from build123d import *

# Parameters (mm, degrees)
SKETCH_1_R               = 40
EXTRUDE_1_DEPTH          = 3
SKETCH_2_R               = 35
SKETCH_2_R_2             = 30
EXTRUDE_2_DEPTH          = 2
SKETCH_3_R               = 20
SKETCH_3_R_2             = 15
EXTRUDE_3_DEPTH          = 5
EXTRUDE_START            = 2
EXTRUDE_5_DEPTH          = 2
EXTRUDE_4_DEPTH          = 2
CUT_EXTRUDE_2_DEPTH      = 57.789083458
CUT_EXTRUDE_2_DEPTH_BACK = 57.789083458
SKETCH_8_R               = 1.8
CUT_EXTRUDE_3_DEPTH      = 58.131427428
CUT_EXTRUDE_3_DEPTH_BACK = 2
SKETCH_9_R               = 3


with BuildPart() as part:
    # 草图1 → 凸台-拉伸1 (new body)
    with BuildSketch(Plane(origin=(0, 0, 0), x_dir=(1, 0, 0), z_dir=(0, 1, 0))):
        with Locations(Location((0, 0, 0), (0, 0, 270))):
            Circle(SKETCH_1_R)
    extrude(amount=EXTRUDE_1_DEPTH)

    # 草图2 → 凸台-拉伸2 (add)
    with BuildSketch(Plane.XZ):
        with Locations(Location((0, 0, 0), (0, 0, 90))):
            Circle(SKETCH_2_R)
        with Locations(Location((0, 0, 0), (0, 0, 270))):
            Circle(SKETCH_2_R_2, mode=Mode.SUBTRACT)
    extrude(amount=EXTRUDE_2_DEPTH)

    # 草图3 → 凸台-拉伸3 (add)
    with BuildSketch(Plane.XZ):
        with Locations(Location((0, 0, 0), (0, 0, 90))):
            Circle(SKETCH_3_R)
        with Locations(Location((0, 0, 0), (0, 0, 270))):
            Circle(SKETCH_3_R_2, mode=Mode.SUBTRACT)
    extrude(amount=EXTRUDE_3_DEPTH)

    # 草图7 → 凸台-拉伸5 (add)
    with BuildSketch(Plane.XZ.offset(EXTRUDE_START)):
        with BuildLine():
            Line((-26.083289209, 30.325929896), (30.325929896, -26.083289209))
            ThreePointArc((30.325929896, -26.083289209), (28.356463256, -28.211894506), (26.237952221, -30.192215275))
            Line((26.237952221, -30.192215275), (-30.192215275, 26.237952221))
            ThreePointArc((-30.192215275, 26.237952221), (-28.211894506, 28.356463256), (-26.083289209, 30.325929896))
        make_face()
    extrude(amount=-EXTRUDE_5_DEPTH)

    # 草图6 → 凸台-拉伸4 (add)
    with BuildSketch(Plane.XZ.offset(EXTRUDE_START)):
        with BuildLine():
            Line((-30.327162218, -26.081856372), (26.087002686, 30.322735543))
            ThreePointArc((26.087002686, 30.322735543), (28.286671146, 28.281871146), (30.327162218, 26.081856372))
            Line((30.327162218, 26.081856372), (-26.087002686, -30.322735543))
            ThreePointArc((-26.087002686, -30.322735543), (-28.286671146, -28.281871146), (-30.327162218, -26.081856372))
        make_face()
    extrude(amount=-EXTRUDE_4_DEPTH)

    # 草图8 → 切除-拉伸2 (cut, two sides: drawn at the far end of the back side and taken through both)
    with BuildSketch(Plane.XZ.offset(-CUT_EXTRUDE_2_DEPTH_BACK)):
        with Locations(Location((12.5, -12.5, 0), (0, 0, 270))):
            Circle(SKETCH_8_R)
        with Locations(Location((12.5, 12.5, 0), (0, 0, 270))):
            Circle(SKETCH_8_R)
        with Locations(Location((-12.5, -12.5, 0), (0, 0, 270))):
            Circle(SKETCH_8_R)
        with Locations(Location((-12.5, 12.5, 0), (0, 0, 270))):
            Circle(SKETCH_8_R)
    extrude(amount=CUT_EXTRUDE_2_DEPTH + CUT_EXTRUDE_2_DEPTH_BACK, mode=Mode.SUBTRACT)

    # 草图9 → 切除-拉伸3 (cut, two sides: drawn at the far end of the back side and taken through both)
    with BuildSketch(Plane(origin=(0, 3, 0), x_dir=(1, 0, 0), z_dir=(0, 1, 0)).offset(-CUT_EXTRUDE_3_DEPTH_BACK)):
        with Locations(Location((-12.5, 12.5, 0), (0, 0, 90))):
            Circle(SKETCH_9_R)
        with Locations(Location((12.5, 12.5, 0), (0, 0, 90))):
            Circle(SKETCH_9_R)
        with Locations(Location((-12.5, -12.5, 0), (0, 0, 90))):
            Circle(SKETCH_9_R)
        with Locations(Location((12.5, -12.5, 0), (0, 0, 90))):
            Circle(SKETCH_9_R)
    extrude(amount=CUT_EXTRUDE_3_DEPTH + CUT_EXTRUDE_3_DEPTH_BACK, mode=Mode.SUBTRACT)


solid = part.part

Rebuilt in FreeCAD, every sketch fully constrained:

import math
import FreeCAD as App
import Part
import Sketcher
Q = App.Units.Quantity

doc = App.newDocument("Part")
body = doc.addObject("PartDesign::Body", "Body")

# Sketch on XZ plane
sketch1 = body.newObject("Sketcher::SketchObject", "Sketch")
sketch1.AttachmentSupport = (doc.getObject("XZ_Plane"), [""])
sketch1.MapMode = "FlatFace"
sketch1.addGeometry(Part.Circle(App.Vector(0, 0, 0), App.Vector(0, 0, 1), 40), False)
sketch1.addConstraint([
    Sketcher.Constraint("Coincident", 0, 3, -1, 1),
    Sketcher.Constraint("Diameter", 0, 80.0),
])
pad1 = body.newObject("PartDesign::Pad", "Pad")
pad1.Profile = sketch1
pad1.Length = 3
pad1.Reversed = True

# Sketch on XZ plane
sketch2 = body.newObject("Sketcher::SketchObject", "Sketch001")
sketch2.AttachmentSupport = (doc.getObject("XZ_Plane"), [""])
sketch2.MapMode = "FlatFace"
sketch2.addGeometry([
    Part.Circle(App.Vector(0, 0, 0), App.Vector(0, 0, 1), 35),
    Part.Circle(App.Vector(0, 0, 0), App.Vector(0, 0, 1), 30),
], False)
sketch2.addConstraint([
    Sketcher.Constraint("Coincident", 0, 3, -1, 1),
    Sketcher.Constraint("Coincident", 1, 3, -1, 1),
    Sketcher.Constraint("Diameter", 0, 70.0),
    Sketcher.Constraint("Diameter", 1, 60.0),
])
pad2 = body.newObject("PartDesign::Pad", "Pad001")
pad2.Profile = sketch2
pad2.Length = 2

# Sketch on XZ plane
sketch3 = body.newObject("Sketcher::SketchObject", "Sketch002")
sketch3.AttachmentSupport = (doc.getObject("XZ_Plane"), [""])
sketch3.MapMode = "FlatFace"
sketch3.addGeometry([
    Part.Circle(App.Vector(0, 0, 0), App.Vector(0, 0, 1), 20),
    Part.Circle(App.Vector(0, 0, 0), App.Vector(0, 0, 1), 15),
], False)
sketch3.addConstraint([
    Sketcher.Constraint("Coincident", 0, 3, -1, 1),
    Sketcher.Constraint("Coincident", 1, 3, -1, 1),
    Sketcher.Constraint("Diameter", 0, 40.0),
    Sketcher.Constraint("Diameter", 1, 30.0),
])
pad3 = body.newObject("PartDesign::Pad", "Pad002")
pad3.Profile = sketch3
pad3.Length = 5

# Sketch on XZ plane
sketch4 = body.newObject("Sketcher::SketchObject", "Sketch003")
sketch4.AttachmentSupport = (doc.getObject("XZ_Plane"), [""])
sketch4.MapMode = "FlatFace"
sketch4.AttachmentOffset = App.Placement(App.Vector(0, 0, 2), App.Rotation())
sketch4.addGeometry([
    Part.LineSegment(App.Vector(30, -26, 0), App.Vector(-26, 30, 0)),
    Part.ArcOfCircle(Part.Circle(App.Vector(0, 0, 0), App.Vector(0, 0, 1), 40), math.radians(130.7), math.radians(139.01)),
    Part.LineSegment(App.Vector(-30, 26, 0), App.Vector(26, -30, 0)),
    Part.ArcOfCircle(Part.Circle(App.Vector(0, 0, 0), App.Vector(0, 0, 1), 40), math.radians(-49.01), math.radians(-40.7)),
], False)
sketch4.addConstraint([
    Sketcher.Constraint("Coincident", 0, 2, 1, 1),
    Sketcher.Constraint("Coincident", 1, 2, 2, 1),
    Sketcher.Constraint("Coincident", 2, 2, 3, 1),
    Sketcher.Constraint("Coincident", 3, 2, 0, 1),
    Sketcher.Constraint("Coincident", 1, 3, -1, 1),
    Sketcher.Constraint("Coincident", 3, 3, -1, 1),
    Sketcher.Constraint("Equal", 1, 3),
    Sketcher.Constraint("Parallel", 0, 2),
    Sketcher.Constraint("Radius", 1, 40.0),
    Sketcher.Constraint("Angle", 0, Q("135 deg")),
    Sketcher.Constraint("Distance", 2, 79.804308),
    Sketcher.Constraint("DistanceX", 0, 2, -1, 1, 26.083289),
])
pad4 = body.newObject("PartDesign::Pad", "Pad003")
pad4.Profile = sketch4
pad4.Length = 2
pad4.Reversed = True

# Sketch on XZ plane
sketch5 = body.newObject("Sketcher::SketchObject", "Sketch004")
sketch5.AttachmentSupport = (doc.getObject("XZ_Plane"), [""])
sketch5.MapMode = "FlatFace"
sketch5.AttachmentOffset = App.Placement(App.Vector(0, 0, 2), App.Rotation())
sketch5.addGeometry([
    Part.LineSegment(App.Vector(26.087003, 30.322736, 0), App.Vector(-30.327162, -26.081856, 0)),
    Part.ArcOfCircle(Part.Circle(App.Vector(0, 0, 0), App.Vector(0, 0, 1), 40), math.radians(-139.303929), math.radians(-130.705794)),
    Part.LineSegment(App.Vector(-26.087003, -30.322736, 0), App.Vector(30.327162, 26.081856, 0)),
    Part.ArcOfCircle(Part.Circle(App.Vector(0, 0, 0), App.Vector(0, 0, 1), 40), math.radians(40.696071), math.radians(49.294206)),
], False)
sketch5.addConstraint([
    Sketcher.Constraint("Coincident", 0, 2, 1, 1),
    Sketcher.Constraint("Coincident", 1, 2, 2, 1),
    Sketcher.Constraint("Coincident", 2, 2, 3, 1),
    Sketcher.Constraint("Coincident", 3, 2, 0, 1),
    Sketcher.Constraint("Coincident", 1, 3, -1, 1),
    Sketcher.Constraint("Coincident", 3, 3, -1, 1),
    Sketcher.Constraint("Radius", 1, 40.0),
    Sketcher.Constraint("Radius", 3, 40.0),
    Sketcher.Constraint("Distance", 0, 79.774908),
    Sketcher.Constraint("Distance", 2, 79.774908),
    Sketcher.Constraint("DistanceX", 0, 2, 1, 2, 4.24016),
    Sketcher.Constraint("DistanceY", 1, 2, 0, 2, 4.240879),
])
pad5 = body.newObject("PartDesign::Pad", "Pad004")
pad5.Profile = sketch5
pad5.Length = 2
pad5.Reversed = True

# Sketch on XZ plane
sketch6 = body.newObject("Sketcher::SketchObject", "Sketch005")
sketch6.AttachmentSupport = (doc.getObject("XZ_Plane"), [""])
sketch6.MapMode = "FlatFace"
sketch6.addGeometry([
    Part.Circle(App.Vector(12.5, -12.5, 0), App.Vector(0, 0, 1), 1.8),
    Part.Circle(App.Vector(12.5, 12.5, 0), App.Vector(0, 0, 1), 1.8),
    Part.Circle(App.Vector(-12.5, -12.5, 0), App.Vector(0, 0, 1), 1.8),
    Part.Circle(App.Vector(-12.5, 12.5, 0), App.Vector(0, 0, 1), 1.8),
], False)
sketch6.addConstraint([
    Sketcher.Constraint("Equal", 0, 1),
    Sketcher.Constraint("Equal", 1, 2),
    Sketcher.Constraint("Equal", 2, 3),
    Sketcher.Constraint("Symmetric", 1, 3, 2, 3, -1, 1),
    Sketcher.Constraint("Symmetric", 0, 3, 3, 3, -1, 1),
    Sketcher.Constraint("Symmetric", 0, 3, 2, 3, -2),
    Sketcher.Constraint("Diameter", 0, 3.6),
    Sketcher.Constraint("DistanceY", 0, 3, 1, 3, 25.0),
    Sketcher.Constraint("DistanceX", 2, 3, 0, 3, 25.0),
])
pocket1 = body.newObject("PartDesign::Pocket", "Pocket")
pocket1.Profile = sketch6
pocket1.Type = "ThroughAll"
pocket1.Midplane = True

# Sketch on XZ plane
sketch7 = body.newObject("Sketcher::SketchObject", "Sketch006")
sketch7.AttachmentSupport = (doc.getObject("XZ_Plane"), [""])
sketch7.MapMode = "FlatFace"
sketch7.AttachmentOffset = App.Placement(App.Vector(0, 0, -3), App.Rotation())
sketch7.addGeometry([
    Part.Circle(App.Vector(-12.5, -12.5, 0), App.Vector(0, 0, 1), 3),
    Part.Circle(App.Vector(12.5, -12.5, 0), App.Vector(0, 0, 1), 3),
    Part.Circle(App.Vector(-12.5, 12.5, 0), App.Vector(0, 0, 1), 3),
    Part.Circle(App.Vector(12.5, 12.5, 0), App.Vector(0, 0, 1), 3),
], False)
sketch7.addConstraint([
    Sketcher.Constraint("Equal", 0, 1),
    Sketcher.Constraint("Equal", 1, 2),
    Sketcher.Constraint("Equal", 2, 3),
    Sketcher.Constraint("Symmetric", 1, 3, 2, 3, -1, 1),
    Sketcher.Constraint("Symmetric", 0, 3, 3, 3, -1, 1),
    Sketcher.Constraint("Symmetric", 0, 3, 1, 3, -2),
    Sketcher.Constraint("Diameter", 0, 6.0),
    Sketcher.Constraint("DistanceX", 0, 3, 1, 3, 25.0),
    Sketcher.Constraint("DistanceY", 0, 3, 2, 3, 25.0),
])
pocket2 = body.newObject("PartDesign::Pocket", "Pocket001")
pocket2.Profile = sketch7
pocket2.Type = "TwoLengths"
pocket2.Length = 58.131427
pocket2.Length2 = 2

doc.recompute()
